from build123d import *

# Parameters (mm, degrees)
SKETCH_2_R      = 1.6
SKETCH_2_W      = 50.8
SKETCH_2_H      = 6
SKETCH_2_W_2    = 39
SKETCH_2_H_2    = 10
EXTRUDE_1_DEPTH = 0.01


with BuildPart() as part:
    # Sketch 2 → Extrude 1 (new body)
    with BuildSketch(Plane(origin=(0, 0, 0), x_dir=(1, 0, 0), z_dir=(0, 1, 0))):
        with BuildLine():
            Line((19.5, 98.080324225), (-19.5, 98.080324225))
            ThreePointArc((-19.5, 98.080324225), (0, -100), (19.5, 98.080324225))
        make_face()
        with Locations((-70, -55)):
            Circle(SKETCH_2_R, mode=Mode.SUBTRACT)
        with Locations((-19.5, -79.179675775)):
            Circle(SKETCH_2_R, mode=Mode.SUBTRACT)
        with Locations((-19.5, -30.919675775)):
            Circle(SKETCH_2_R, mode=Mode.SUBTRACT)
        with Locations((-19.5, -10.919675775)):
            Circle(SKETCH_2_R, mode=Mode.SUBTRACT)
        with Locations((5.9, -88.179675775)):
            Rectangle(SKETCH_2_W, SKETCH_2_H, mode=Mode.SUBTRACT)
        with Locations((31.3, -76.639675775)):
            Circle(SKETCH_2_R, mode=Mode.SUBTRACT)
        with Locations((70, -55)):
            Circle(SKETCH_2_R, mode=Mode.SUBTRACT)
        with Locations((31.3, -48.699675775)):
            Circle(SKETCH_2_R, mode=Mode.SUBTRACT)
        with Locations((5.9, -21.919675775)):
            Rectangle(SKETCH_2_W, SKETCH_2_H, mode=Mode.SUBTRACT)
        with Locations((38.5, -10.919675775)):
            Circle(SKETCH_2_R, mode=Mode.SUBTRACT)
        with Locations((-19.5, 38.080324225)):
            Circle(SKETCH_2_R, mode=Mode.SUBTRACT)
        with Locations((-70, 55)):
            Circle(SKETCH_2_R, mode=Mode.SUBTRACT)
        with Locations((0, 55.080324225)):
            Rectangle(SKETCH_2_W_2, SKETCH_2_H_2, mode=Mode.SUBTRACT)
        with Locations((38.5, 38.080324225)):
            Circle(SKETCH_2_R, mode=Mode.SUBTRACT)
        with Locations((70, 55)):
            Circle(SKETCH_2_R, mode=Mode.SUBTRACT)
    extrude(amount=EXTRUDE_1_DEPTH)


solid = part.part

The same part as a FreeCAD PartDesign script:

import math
import FreeCAD as App
import Part
import Sketcher

V = App.Vector


def add_polygon(sketch, points):
    """Adds a closed chain of lines whose ends are joined by coincident constraints."""
    first, n = sketch.GeometryCount, len(points)
    for a, b in zip(points, points[1:] + points[:1]):
        sketch.addGeometry(Part.LineSegment(App.Vector(*a, 0), App.Vector(*b, 0)), False)
    for i in range(n):
        sketch.addConstraint(Sketcher.Constraint("Coincident", first + i, 2, first + (i + 1) % n, 1))

doc = App.newDocument("Part")
body = doc.addObject("PartDesign::Body", "Body")

# Sketch on XZ plane
sketch1 = body.newObject("Sketcher::SketchObject", "Sketch")
sketch1.AttachmentSupport = (doc.getObject("XZ_Plane"), [""])
sketch1.MapMode = "FlatFace"
sketch1.addGeometry(Part.LineSegment(V(19.5, -98.1, 0), V(-19.5, -98.1, 0)), False)  # 0
sketch1.addGeometry(Part.ArcOfCircle(Part.Circle(V(0, 0, 0), V(0, 0, 1), 100), math.radians(-79), math.radians(259)), False)  # 1
sketch1.addGeometry(Part.Circle(V(-70, 55, 0), V(0, 0, 1), 1.6), False)  # 2
sketch1.addGeometry(Part.Circle(V(-19.5, 79.2, 0), V(0, 0, 1), 1.6), False)  # 3
sketch1.addGeometry(Part.Circle(V(-19.5, 30.9, 0), V(0, 0, 1), 1.6), False)  # 4
add_polygon(sketch1, [(31.3, 91.2), (-19.5, 91.2), (-19.5, 85.2), (31.3, 85.2)])  # lines 5-8
sketch1.addGeometry(Part.Circle(V(31.3, 76.6, 0), V(0, 0, 1), 1.6), False)  # 9
sketch1.addGeometry(Part.Circle(V(70, 55, 0), V(0, 0, 1), 1.6), False)  # 10
sketch1.addGeometry(Part.Circle(V(31.3, 48.7, 0), V(0, 0, 1), 1.6), False)  # 11
add_polygon(sketch1, [(31.3, 24.9), (-19.5, 24.9), (-19.5, 18.9), (31.3, 18.9)])  # lines 12-15
sketch1.addGeometry(Part.Circle(V(-19.5, 10.9, 0), V(0, 0, 1), 1.6), False)  # 16
sketch1.addGeometry(Part.Circle(V(-70, -55, 0), V(0, 0, 1), 1.6), False)  # 17
sketch1.addGeometry(Part.Circle(V(-19.5, -38.1, 0), V(0, 0, 1), 1.6), False)  # 18
sketch1.addGeometry(Part.Circle(V(38.5, 10.9, 0), V(0, 0, 1), 1.6), False)  # 19
add_polygon(sketch1, [(19.5, -50.1), (-19.5, -50.1), (-19.5, -60.1), (19.5, -60.1)])  # lines 20-23
sketch1.addGeometry(Part.Circle(V(38.5, -38.1, 0), V(0, 0, 1), 1.6), False)  # 24
sketch1.addGeometry(Part.Circle(V(70, -55, 0), V(0, 0, 1), 1.6), False)  # 25
sketch1.addConstraint([
    Sketcher.Constraint("Coincident", 0, 1, 1, 1),
    Sketcher.Constraint("Coincident", 1, 2, 0, 2),
    Sketcher.Constraint("Horizontal", 0),
    Sketcher.Constraint("Horizontal", 5),
    Sketcher.Constraint("Vertical", 6),
    Sketcher.Constraint("Horizontal", 7),
    Sketcher.Constraint("Vertical", 8),
    Sketcher.Constraint("Horizontal", 12),
    Sketcher.Constraint("Vertical", 13),
    Sketcher.Constraint("Horizontal", 14),
    Sketcher.Constraint("Vertical", 15),
    Sketcher.Constraint("Horizontal", 20),
    Sketcher.Constraint("Vertical", 21),
    Sketcher.Constraint("Horizontal", 22),
    Sketcher.Constraint("Vertical", 23),
    Sketcher.Constraint("Coincident", 1, 3, -1, 1),
    Sketcher.Constraint("Equal", 2, 3),
    Sketcher.Constraint("Equal", 3, 4),
    Sketcher.Constraint("Equal", 4, 9),
    Sketcher.Constraint("Equal", 9, 10),
    Sketcher.Constraint("Equal", 10, 11),
    Sketcher.Constraint("Equal", 11, 16),
    Sketcher.Constraint("Equal", 16, 17),
    Sketcher.Constraint("Equal", 17, 18),
    Sketcher.Constraint("Equal", 18, 19),
    Sketcher.Constraint("Equal", 19, 24),
    Sketcher.Constraint("Equal", 24, 25),
    Sketcher.Constraint("Symmetric", 10, 3, 17, 3, -1, 1),
    Sketcher.Constraint("Symmetric", 2, 3, 25, 3, -1, 1),
    Sketcher.Constraint("Symmetric", 2, 3, 10, 3, -2),
    Sketcher.Constraint("Horizontal", 16, 3, 19, 3),
    Sketcher.Constraint("Horizontal", 18, 3, 24, 3),
    Sketcher.Constraint("Vertical", 3, 3, 4, 3),
    Sketcher.Constraint("Vertical", 9, 3, 11, 3),
    Sketcher.Constraint("Vertical", 4, 3, 16, 3),
    Sketcher.Constraint("Vertical", 16, 3, 18, 3),
    Sketcher.Constraint("Vertical", 19, 3, 24, 3),
    Sketcher.Constraint("Vertical", 18, 3, 1, 2),
    Sketcher.Constraint("Vertical", 1, 2, 5, 2),
    Sketcher.Constraint("Vertical", 11, 3, 7, 2),
    Sketcher.Constraint("Vertical", 6, 2, 12, 2),
    Sketcher.Constraint("Vertical", 8, 2, 14, 2),
    Sketcher.Constraint("Vertical", 13, 2, 20, 2),
    Sketcher.Constraint("Vertical", 0, 1, 22, 2),
    Sketcher.Constraint("Equal", 8, 13),
    Sketcher.Constraint("Radius", 1, 100.0),
    Sketcher.Constraint("Diameter", 2, 3.2),
    Sketcher.Constraint("DistanceX", 0, 2, 0, 1, 39.0),
    Sketcher.Constraint("DistanceY", 6, 2, 6, 1, 6.0),
    Sketcher.Constraint("DistanceY", 21, 2, 21, 1, 10.0),
    Sketcher.Constraint("DistanceX", 5, 2, 5, 1, 50.8),
    Sketcher.Constraint("DistanceX", 2, 3, -1, 1, 70.0),
    Sketcher.Constraint("DistanceY", -1, 1, 2, 3, 55.0),
    Sketcher.Constraint("DistanceY", 16, 3, 4, 3, 20.0),
    Sketcher.Constraint("DistanceY", 18, 3, 16, 3, 49.0),
    Sketcher.Constraint("DistanceX", 16, 3, 19, 3, 58.0),
    Sketcher.Constraint("DistanceY", 0, 1, 24, 3, 60.0),
    Sketcher.Constraint("DistanceY", 3, 3, 5, 2, 12.0),
    Sketcher.Constraint("DistanceY", 12, 2, 4, 3, 6.0),
    Sketcher.Constraint("DistanceY", 20, 2, 18, 3, 12.0),
    Sketcher.Constraint("DistanceY", 4, 3, 3, 3, 48.26),
    Sketcher.Constraint("DistanceY", 9, 3, 3, 3, 2.54),
    Sketcher.Constraint("DistanceY", 11, 3, 9, 3, 27.94),
])
pad1 = body.newObject("PartDesign::Pad", "Pad")
pad1.Profile = sketch1
pad1.Length = 0.01
pad1.Reversed = True

doc.recompute()
